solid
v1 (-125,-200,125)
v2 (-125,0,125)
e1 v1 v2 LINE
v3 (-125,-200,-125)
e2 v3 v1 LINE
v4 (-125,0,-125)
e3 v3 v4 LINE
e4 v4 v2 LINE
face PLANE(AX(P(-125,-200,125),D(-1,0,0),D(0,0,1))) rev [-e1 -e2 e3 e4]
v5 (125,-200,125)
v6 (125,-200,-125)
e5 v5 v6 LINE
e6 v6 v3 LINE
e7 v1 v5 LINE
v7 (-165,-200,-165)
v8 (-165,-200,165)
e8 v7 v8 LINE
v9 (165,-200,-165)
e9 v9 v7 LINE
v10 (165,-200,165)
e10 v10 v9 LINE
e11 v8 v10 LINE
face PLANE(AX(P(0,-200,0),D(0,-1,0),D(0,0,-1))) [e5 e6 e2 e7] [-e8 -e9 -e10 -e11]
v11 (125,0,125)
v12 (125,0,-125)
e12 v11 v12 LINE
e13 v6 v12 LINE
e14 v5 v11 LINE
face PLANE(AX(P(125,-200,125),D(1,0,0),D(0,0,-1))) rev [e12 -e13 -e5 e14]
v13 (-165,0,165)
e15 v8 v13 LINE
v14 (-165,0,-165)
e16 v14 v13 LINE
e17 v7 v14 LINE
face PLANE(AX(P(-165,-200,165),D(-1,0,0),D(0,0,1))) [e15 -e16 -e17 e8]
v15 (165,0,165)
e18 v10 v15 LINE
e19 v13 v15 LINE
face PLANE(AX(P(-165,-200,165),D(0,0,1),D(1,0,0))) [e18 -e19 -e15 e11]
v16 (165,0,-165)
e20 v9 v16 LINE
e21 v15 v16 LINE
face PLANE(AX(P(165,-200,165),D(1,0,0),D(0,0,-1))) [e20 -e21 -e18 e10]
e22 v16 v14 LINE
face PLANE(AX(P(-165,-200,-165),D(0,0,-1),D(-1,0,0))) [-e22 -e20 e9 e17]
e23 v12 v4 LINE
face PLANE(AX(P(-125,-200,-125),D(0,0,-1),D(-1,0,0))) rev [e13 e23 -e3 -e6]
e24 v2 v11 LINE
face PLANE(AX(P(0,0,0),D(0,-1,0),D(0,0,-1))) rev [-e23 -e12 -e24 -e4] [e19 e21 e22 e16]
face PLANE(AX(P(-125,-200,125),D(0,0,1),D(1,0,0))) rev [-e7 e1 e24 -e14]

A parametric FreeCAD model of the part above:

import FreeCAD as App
import Part
import Sketcher

V = App.Vector


def add_polygon(sketch, points):
    """Adds a closed chain of lines whose ends are joined by coincident constraints."""
    first, n = sketch.GeometryCount, len(points)
    for a, b in zip(points, points[1:] + points[:1]):
        sketch.addGeometry(Part.LineSegment(App.Vector(*a, 0), App.Vector(*b, 0)), False)
    for i in range(n):
        sketch.addConstraint(Sketcher.Constraint("Coincident", first + i, 2, first + (i + 1) % n, 1))

doc = App.newDocument("Part")
body = doc.addObject("PartDesign::Body", "Body")

sketch1 = body.newObject("Sketcher::SketchObject", "Sketch")
sketch1.AttachmentSupport = (doc.getObject("XZ_Plane"), [""])
sketch1.MapMode = "FlatFace"
add_polygon(sketch1, [(-165, -165), (-165, 165), (165, 165), (165, -165)])
add_polygon(sketch1, [(125, 125), (-125, 125), (-125, -125), (125, -125)])
sketch1.addConstraint(Sketcher.Constraint("Vertical", 0))
sketch1.addConstraint(Sketcher.Constraint("Horizontal", 1))
sketch1.addConstraint(Sketcher.Constraint("Vertical", 2))
sketch1.addConstraint(Sketcher.Constraint("Horizontal", 3))
sketch1.addConstraint(Sketcher.Constraint("Horizontal", 4))
sketch1.addConstraint(Sketcher.Constraint("Vertical", 5))
sketch1.addConstraint(Sketcher.Constraint("Horizontal", 6))
sketch1.addConstraint(Sketcher.Constraint("Vertical", 7))
sketch1.addConstraint(Sketcher.Constraint("Symmetric", 0, 2, 2, 2, -1, 1))
sketch1.addConstraint(Sketcher.Constraint("Symmetric", 4, 2, 6, 2, -1, 1))
sketch1.addConstraint(Sketcher.Constraint("Equal", 3, 0))
sketch1.addConstraint(Sketcher.Constraint("Equal", 6, 5))
sketch1.addConstraint(Sketcher.Constraint("DistanceX", 1, 1, 1, 2, 330.0))
sketch1.addConstraint(Sketcher.Constraint("DistanceX", 4, 2, 4, 1, 250.0))
pad1 = body.newObject("PartDesign::Pad", "Pad")
pad1.Profile = sketch1
pad1.Length = 200

doc.recompute()
